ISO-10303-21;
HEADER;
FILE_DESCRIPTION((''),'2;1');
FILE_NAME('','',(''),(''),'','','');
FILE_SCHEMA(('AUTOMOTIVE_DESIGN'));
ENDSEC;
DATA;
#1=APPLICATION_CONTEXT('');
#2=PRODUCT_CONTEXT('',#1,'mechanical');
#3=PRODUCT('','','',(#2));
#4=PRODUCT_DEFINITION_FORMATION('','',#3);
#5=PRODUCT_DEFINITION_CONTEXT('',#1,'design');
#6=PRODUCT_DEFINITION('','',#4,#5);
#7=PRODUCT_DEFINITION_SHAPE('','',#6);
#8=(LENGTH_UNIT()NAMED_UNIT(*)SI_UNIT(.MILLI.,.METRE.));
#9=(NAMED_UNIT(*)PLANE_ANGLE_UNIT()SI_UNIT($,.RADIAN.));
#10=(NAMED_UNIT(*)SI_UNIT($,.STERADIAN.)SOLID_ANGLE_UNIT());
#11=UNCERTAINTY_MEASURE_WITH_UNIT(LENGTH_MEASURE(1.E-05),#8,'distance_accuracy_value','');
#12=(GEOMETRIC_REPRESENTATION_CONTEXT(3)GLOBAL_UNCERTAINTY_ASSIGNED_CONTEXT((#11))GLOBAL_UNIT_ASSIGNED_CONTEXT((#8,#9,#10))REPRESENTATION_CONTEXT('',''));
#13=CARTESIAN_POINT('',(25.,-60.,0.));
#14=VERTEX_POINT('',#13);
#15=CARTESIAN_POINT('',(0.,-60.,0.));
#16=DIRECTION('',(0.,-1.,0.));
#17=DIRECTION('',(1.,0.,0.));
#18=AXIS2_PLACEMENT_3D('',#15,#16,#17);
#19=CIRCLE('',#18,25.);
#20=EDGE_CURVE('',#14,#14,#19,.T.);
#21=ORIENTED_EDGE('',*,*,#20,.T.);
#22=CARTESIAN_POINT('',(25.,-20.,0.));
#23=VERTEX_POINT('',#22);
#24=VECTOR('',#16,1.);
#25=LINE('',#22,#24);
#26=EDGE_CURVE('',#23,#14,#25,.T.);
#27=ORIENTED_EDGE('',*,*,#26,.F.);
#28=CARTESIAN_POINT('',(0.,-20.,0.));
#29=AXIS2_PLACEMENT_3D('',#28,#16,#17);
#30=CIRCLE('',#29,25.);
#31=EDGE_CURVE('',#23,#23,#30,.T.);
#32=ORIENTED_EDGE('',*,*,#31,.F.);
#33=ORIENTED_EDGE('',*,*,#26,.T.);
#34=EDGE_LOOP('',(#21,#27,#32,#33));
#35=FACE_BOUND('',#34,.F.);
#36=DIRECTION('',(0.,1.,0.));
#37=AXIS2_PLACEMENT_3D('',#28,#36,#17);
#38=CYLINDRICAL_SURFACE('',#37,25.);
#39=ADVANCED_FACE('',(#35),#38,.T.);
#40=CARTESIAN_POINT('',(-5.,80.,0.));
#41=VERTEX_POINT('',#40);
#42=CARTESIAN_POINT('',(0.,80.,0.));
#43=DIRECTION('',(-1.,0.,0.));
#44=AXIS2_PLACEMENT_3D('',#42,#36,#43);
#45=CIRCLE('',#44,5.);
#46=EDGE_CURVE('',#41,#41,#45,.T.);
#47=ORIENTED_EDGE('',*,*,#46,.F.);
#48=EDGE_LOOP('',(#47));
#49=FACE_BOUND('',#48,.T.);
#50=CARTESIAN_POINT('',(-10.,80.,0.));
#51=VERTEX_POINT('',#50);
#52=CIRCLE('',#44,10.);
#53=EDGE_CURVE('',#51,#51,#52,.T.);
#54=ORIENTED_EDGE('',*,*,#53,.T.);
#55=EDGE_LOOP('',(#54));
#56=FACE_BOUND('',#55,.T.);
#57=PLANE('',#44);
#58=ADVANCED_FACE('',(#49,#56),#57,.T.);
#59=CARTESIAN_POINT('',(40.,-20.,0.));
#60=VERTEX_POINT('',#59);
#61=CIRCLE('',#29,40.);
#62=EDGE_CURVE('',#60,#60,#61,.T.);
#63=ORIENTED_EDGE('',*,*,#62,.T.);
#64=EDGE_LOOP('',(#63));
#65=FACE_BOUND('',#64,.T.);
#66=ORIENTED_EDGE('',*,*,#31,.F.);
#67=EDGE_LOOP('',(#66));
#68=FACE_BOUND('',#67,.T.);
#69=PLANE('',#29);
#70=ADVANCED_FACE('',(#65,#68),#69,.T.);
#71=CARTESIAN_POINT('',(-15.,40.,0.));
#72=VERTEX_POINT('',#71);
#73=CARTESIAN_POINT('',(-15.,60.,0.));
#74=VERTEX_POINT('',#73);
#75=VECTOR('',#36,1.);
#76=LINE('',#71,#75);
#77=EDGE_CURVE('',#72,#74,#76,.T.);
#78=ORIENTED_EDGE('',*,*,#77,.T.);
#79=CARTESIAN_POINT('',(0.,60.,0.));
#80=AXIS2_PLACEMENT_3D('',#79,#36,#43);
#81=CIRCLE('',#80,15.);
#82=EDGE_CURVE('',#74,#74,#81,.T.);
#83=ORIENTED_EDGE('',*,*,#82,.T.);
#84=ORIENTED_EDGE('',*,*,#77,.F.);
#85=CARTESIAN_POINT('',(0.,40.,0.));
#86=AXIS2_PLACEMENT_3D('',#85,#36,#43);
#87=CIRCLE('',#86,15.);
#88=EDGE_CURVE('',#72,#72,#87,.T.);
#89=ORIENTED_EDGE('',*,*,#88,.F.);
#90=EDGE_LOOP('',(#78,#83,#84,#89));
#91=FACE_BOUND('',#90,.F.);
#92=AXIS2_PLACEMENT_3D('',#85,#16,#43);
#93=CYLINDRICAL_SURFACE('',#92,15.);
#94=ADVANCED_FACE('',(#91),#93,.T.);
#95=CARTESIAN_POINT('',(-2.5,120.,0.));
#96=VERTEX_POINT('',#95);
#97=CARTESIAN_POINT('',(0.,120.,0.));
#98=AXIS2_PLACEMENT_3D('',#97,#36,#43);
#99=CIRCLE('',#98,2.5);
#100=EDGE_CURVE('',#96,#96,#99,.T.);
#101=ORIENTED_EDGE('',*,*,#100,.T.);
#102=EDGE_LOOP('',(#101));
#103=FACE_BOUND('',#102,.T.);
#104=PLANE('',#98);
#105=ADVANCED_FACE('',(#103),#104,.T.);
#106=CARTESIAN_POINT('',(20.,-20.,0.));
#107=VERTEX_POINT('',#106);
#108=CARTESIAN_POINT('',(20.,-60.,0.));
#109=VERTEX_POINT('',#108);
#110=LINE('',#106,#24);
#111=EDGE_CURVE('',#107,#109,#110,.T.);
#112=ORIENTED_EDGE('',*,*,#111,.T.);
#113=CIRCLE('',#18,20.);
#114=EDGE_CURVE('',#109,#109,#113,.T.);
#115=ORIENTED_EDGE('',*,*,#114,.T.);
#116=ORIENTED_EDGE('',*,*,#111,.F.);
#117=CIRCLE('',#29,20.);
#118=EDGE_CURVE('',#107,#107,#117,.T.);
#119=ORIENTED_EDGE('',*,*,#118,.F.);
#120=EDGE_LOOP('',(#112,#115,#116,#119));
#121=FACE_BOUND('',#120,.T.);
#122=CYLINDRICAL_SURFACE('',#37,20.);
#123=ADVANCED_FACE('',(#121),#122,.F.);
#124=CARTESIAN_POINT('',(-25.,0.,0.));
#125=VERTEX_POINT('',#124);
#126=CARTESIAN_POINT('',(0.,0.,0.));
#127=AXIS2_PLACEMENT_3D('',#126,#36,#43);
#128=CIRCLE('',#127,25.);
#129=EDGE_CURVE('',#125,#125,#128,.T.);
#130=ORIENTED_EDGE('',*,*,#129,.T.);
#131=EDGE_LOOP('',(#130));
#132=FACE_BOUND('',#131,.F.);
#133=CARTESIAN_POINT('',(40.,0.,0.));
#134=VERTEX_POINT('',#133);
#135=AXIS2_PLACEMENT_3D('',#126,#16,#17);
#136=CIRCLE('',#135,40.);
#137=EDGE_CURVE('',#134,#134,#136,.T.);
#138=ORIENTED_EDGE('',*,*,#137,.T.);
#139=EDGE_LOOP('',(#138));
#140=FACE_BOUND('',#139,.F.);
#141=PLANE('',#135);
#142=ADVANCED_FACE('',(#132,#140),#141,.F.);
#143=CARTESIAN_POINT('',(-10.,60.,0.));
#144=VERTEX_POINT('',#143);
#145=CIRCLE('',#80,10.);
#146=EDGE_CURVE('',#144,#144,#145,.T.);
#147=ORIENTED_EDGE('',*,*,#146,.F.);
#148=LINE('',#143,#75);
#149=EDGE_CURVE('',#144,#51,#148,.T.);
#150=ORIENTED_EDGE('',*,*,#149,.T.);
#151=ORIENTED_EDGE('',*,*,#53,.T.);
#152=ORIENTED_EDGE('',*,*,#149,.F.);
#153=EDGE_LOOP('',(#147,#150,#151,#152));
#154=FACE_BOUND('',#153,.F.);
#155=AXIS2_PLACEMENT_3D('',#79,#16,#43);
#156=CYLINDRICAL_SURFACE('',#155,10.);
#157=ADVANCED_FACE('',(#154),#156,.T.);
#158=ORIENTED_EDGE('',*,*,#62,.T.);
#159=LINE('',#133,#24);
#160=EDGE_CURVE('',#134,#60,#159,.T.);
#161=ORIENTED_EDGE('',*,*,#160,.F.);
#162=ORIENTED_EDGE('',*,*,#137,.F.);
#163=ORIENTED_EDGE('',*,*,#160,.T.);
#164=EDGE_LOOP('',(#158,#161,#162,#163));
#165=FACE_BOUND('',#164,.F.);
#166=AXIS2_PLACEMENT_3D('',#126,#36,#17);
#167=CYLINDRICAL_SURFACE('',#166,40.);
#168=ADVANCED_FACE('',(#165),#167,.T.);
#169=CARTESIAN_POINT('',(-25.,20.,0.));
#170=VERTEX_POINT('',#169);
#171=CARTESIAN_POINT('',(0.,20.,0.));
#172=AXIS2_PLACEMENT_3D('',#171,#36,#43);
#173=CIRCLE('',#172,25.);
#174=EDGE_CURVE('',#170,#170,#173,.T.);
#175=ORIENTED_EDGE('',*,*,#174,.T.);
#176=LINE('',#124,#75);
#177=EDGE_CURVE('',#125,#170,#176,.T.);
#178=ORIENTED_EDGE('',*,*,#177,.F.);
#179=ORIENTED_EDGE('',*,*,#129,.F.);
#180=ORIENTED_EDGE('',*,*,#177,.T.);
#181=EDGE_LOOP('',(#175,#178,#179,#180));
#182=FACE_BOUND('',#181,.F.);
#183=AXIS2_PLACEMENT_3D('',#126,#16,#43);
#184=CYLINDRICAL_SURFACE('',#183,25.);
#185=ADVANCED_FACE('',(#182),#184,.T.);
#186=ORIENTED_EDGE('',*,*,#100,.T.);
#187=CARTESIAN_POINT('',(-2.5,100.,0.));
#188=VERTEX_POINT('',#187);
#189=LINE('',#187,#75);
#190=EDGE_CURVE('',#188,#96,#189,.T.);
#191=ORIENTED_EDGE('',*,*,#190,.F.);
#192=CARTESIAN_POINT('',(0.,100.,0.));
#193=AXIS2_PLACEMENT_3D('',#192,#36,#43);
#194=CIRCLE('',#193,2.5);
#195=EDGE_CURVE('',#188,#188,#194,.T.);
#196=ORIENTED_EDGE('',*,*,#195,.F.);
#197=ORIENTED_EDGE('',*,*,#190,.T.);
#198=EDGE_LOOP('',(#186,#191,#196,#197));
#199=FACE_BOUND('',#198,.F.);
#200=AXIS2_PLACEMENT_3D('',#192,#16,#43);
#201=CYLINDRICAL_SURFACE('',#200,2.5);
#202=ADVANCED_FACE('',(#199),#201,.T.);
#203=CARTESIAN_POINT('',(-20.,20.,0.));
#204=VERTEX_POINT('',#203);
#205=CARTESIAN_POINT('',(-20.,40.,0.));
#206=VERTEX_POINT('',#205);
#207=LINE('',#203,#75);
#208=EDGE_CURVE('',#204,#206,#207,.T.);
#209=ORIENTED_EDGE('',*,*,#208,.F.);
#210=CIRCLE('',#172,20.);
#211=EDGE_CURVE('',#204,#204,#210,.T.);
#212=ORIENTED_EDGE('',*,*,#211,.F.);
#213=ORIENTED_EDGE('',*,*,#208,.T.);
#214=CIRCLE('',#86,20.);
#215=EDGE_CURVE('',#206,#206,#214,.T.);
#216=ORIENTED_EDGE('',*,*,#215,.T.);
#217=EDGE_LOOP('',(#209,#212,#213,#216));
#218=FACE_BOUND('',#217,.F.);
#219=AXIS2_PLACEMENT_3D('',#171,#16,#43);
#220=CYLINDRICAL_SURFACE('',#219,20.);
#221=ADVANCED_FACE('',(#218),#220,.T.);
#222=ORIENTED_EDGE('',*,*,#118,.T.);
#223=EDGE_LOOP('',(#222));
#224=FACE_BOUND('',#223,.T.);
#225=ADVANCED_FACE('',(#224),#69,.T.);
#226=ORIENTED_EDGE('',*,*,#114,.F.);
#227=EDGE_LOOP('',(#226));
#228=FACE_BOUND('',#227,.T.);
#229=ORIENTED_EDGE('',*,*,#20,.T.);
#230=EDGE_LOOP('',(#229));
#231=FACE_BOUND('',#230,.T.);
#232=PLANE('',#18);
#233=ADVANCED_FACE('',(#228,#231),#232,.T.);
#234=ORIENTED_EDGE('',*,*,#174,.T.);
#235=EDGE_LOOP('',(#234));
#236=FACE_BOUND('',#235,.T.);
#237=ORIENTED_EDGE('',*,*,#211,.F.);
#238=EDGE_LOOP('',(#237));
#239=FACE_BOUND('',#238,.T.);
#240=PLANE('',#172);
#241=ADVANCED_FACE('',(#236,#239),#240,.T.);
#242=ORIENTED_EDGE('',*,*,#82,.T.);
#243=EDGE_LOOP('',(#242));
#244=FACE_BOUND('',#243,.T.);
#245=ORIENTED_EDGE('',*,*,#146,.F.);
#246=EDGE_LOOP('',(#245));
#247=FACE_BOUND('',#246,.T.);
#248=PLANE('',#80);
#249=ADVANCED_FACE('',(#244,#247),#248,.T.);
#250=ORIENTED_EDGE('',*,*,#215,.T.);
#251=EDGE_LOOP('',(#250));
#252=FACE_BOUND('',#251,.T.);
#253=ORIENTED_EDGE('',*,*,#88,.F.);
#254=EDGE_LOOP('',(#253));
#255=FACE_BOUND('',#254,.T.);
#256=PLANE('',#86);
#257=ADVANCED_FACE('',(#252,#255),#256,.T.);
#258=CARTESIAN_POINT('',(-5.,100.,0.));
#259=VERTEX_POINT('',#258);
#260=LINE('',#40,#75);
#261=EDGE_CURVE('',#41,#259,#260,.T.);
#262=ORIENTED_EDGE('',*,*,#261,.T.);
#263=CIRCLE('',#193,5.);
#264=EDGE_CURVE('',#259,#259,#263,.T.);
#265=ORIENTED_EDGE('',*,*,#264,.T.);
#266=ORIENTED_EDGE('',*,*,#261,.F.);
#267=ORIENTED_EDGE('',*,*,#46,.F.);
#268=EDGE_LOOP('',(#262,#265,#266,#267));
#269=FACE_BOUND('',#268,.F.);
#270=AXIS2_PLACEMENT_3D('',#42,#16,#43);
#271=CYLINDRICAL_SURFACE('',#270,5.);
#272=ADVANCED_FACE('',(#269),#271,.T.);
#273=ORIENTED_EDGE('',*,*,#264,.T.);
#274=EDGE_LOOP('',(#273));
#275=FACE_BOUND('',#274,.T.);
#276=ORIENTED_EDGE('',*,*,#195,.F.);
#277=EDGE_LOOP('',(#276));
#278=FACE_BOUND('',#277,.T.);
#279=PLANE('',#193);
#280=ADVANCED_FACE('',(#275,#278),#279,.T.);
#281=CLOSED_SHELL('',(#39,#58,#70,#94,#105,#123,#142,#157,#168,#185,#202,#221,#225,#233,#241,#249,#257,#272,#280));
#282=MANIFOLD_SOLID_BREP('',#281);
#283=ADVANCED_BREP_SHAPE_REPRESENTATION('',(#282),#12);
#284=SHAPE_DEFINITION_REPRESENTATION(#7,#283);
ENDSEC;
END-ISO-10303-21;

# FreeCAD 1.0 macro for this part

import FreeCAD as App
import Part
import Sketcher
Q = App.Units.Quantity

doc = App.newDocument("Part")
body = doc.addObject("PartDesign::Body", "Body")

sketch1 = doc.addObject("Sketcher::SketchObject", "Sketch")
body.addObject(sketch1)
sketch1.AttachmentSupport = (doc.XZ_Plane, [""])
sketch1.MapMode = "FlatFace"
sketch1.addGeometry(Part.Circle(App.Vector(0, 0, 0), App.Vector(0, 0, 1), 40), False)
sketch1.addConstraint([
    Sketcher.Constraint("Coincident", 0, 3, -1, 1),
    Sketcher.Constraint("Diameter", 0, Q("80 mm")),
])
pad1 = doc.addObject("PartDesign::Pad", "Pad")
body.addObject(pad1)
pad1.Profile = sketch1
pad1.Length = 20

sketch2 = doc.addObject("Sketcher::SketchObject", "Sketch001")
body.addObject(sketch2)
sketch2.AttachmentSupport = (doc.XZ_Plane, [""])
sketch2.MapMode = "FlatFace"
sketch2.AttachmentOffset = App.Placement(App.Vector(0, 0, 20), App.Rotation())
sketch2.addGeometry([
    Part.Circle(App.Vector(0, 0, 0), App.Vector(0, 0, 1), 25),
    Part.Circle(App.Vector(0, 0, 0), App.Vector(0, 0, 1), 20),
], False)
sketch2.addConstraint([
    Sketcher.Constraint("Coincident", 0, 3, -1, 1),
    Sketcher.Constraint("Coincident", 1, 3, -1, 1),
    Sketcher.Constraint("Diameter", 0, Q("50 mm")),
    Sketcher.Constraint("Diameter", 1, Q("40 mm")),
])
pad2 = doc.addObject("PartDesign::Pad", "Pad001")
body.addObject(pad2)
pad2.Profile = sketch2
pad2.Length = 40

sketch3 = doc.addObject("Sketcher::SketchObject", "Sketch002")
body.addObject(sketch3)
sketch3.AttachmentSupport = (doc.XZ_Plane, [""])
sketch3.MapMode = "FlatFace"
sketch3.addGeometry(Part.Circle(App.Vector(0, 0, 0), App.Vector(0, 0, 1), 25), False)
sketch3.addConstraint([
    Sketcher.Constraint("Coincident", 0, 3, -1, 1),
    Sketcher.Constraint("Diameter", 0, Q("50 mm")),
])
pad3 = doc.addObject("PartDesign::Pad", "Pad002")
body.addObject(pad3)
pad3.Profile = sketch3
pad3.Length = 20
pad3.Reversed = True

sketch4 = doc.addObject("Sketcher::SketchObject", "Sketch003")
body.addObject(sketch4)
sketch4.AttachmentSupport = (doc.XZ_Plane, [""])
sketch4.MapMode = "FlatFace"
sketch4.AttachmentOffset = App.Placement(App.Vector(0, 0, -20), App.Rotation())
sketch4.addGeometry(Part.Circle(App.Vector(0, 0, 0), App.Vector(0, 0, 1), 20), False)
sketch4.addConstraint([
    Sketcher.Constraint("Coincident", 0, 3, -1, 1),
    Sketcher.Constraint("Diameter", 0, Q("40 mm")),
])
pad4 = doc.addObject("PartDesign::Pad", "Pad003")
body.addObject(pad4)
pad4.Profile = sketch4
pad4.Length = 20
pad4.Reversed = True

sketch5 = doc.addObject("Sketcher::SketchObject", "Sketch004")
body.addObject(sketch5)
sketch5.AttachmentSupport = (doc.XZ_Plane, [""])
sketch5.MapMode = "FlatFace"
sketch5.AttachmentOffset = App.Placement(App.Vector(0, 0, -40), App.Rotation())
sketch5.addGeometry(Part.Circle(App.Vector(0, 0, 0), App.Vector(0, 0, 1), 15), False)
sketch5.addConstraint([
    Sketcher.Constraint("Coincident", 0, 3, -1, 1),
    Sketcher.Constraint("Diameter", 0, Q("30 mm")),
])
pad5 = doc.addObject("PartDesign::Pad", "Pad004")
body.addObject(pad5)
pad5.Profile = sketch5
pad5.Length = 20
pad5.Reversed = True

sketch6 = doc.addObject("Sketcher::SketchObject", "Sketch005")
body.addObject(sketch6)
sketch6.AttachmentSupport = (doc.XZ_Plane, [""])
sketch6.MapMode = "FlatFace"
sketch6.AttachmentOffset = App.Placement(App.Vector(0, 0, -60), App.Rotation())
sketch6.addGeometry(Part.Circle(App.Vector(0, 0, 0), App.Vector(0, 0, 1), 10), False)
sketch6.addConstraint([
    Sketcher.Constraint("Coincident", 0, 3, -1, 1),
    Sketcher.Constraint("Diameter", 0, Q("20 mm")),
])
pad6 = doc.addObject("PartDesign::Pad", "Pad005")
body.addObject(pad6)
pad6.Profile = sketch6
pad6.Length = 20
pad6.Reversed = True

sketch7 = doc.addObject("Sketcher::SketchObject", "Sketch006")
body.addObject(sketch7)
sketch7.AttachmentSupport = (doc.XZ_Plane, [""])
sketch7.MapMode = "FlatFace"
sketch7.AttachmentOffset = App.Placement(App.Vector(0, 0, -80), App.Rotation())
sketch7.addGeometry(Part.Circle(App.Vector(0, 0, 0), App.Vector(0, 0, 1), 5), False)
sketch7.addConstraint([
    Sketcher.Constraint("Coincident", 0, 3, -1, 1),
    Sketcher.Constraint("Diameter", 0, Q("10 mm")),
])
pad7 = doc.addObject("PartDesign::Pad", "Pad006")
body.addObject(pad7)
pad7.Profile = sketch7
pad7.Length = 20
pad7.Reversed = True

sketch8 = doc.addObject("Sketcher::SketchObject", "Sketch007")
body.addObject(sketch8)
sketch8.AttachmentSupport = (doc.XZ_Plane, [""])
sketch8.MapMode = "FlatFace"
sketch8.AttachmentOffset = App.Placement(App.Vector(0, 0, -100), App.Rotation())
sketch8.addGeometry(Part.Circle(App.Vector(0, 0, 0), App.Vector(0, 0, 1), 2.5), False)
sketch8.addConstraint([
    Sketcher.Constraint("Coincident", 0, 3, -1, 1),
    Sketcher.Constraint("Diameter", 0, Q("5 mm")),
])
pad8 = doc.addObject("PartDesign::Pad", "Pad007")
body.addObject(pad8)
pad8.Profile = sketch8
pad8.Length = 20
pad8.Reversed = True

doc.recompute()
